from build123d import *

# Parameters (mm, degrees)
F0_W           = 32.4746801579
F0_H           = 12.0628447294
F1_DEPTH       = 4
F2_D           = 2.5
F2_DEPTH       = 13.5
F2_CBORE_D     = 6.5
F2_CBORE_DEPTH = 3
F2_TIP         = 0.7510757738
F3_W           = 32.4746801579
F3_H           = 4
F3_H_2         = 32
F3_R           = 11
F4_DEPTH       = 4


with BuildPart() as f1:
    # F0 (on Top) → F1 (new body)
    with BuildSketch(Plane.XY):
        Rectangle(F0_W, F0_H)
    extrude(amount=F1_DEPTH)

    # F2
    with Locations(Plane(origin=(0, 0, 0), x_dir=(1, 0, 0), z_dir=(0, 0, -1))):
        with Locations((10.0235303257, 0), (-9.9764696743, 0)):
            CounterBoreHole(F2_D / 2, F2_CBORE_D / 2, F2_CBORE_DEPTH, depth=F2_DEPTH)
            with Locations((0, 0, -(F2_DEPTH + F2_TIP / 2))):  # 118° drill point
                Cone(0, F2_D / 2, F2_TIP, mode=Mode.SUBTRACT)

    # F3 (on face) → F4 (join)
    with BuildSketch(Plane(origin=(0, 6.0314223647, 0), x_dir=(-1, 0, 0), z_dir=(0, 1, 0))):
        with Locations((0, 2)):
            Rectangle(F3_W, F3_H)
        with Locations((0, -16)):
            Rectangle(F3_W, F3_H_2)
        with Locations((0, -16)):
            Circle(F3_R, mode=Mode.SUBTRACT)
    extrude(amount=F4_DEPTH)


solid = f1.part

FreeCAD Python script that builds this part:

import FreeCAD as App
import Part
import Sketcher

V = App.Vector


def add_polygon(sketch, points):
    """Adds a closed chain of lines whose ends are joined by coincident constraints."""
    first, n = sketch.GeometryCount, len(points)
    for a, b in zip(points, points[1:] + points[:1]):
        sketch.addGeometry(Part.LineSegment(App.Vector(*a, 0), App.Vector(*b, 0)), False)
    for i in range(n):
        sketch.addConstraint(Sketcher.Constraint("Coincident", first + i, 2, first + (i + 1) % n, 1))

doc = App.newDocument("Part")
params = doc.addObject("Spreadsheet::Sheet", "Params")
for row, (alias, value) in enumerate([
    ("pad1_length", "4 mm"),
    ("sketch2_diameter", "2.5 mm"),
    ("hole_diameter", "2.5 mm"),
    ("hole_depth", "13.5 mm"),
    ("hole_cbore_diameter", "6.5 mm"),
    ("hole_cbore_depth", "3 mm"),
    ("sketch3_diameter", "22 mm"),
    ("sketch3_height", "36 mm"),
    ("pad2_length", "4 mm"),
], start=1):
    params.set(f"A{row}", alias)
    params.set(f"B{row}", "=" + value)
    params.setAlias(f"B{row}", alias)

body = doc.addObject("PartDesign::Body", "Body")

sketch1 = body.newObject("Sketcher::SketchObject", "Sketch")
sketch1.AttachmentSupport = (doc.getObject("XY_Plane"), [""])
sketch1.MapMode = "FlatFace"
add_polygon(sketch1, [(-16, 6), (-16, -6), (16, -6), (16, 6)])
sketch1.addConstraint(Sketcher.Constraint("Vertical", 0))
sketch1.addConstraint(Sketcher.Constraint("Horizontal", 1))
sketch1.addConstraint(Sketcher.Constraint("Vertical", 2))
sketch1.addConstraint(Sketcher.Constraint("Horizontal", 3))
sketch1.addConstraint(Sketcher.Constraint("Symmetric", 0, 2, 2, 2, -1, 1))
sketch1.addConstraint(Sketcher.Constraint("DistanceX", 1, 1, 1, 2, 32.47468))
sketch1.addConstraint(Sketcher.Constraint("DistanceY", 0, 2, 0, 1, 12.062845))
pad1 = body.newObject("PartDesign::Pad", "Pad")
pad1.Profile = sketch1
pad1.setExpression("Length", "Params.pad1_length")

sketch2 = body.newObject("Sketcher::SketchObject", "Sketch001")
sketch2.AttachmentSupport = (doc.getObject("XY_Plane"), [""])
sketch2.MapMode = "FlatFace"
sketch2.addGeometry(Part.Circle(V(10, 0, 0), V(0, 0, 1), 1.2), False)
sketch2.addGeometry(Part.Circle(V(-10, 0, 0), V(0, 0, 1), 1.2), False)
sketch2.addConstraint(Sketcher.Constraint("Equal", 0, 1))
sketch2.addConstraint(Sketcher.Constraint("PointOnObject", 0, 3, -1))
sketch2.addConstraint(Sketcher.Constraint("PointOnObject", 1, 3, -1))
sketch2.addConstraint(Sketcher.Constraint("Diameter", 0, 2.5))
sketch2.addConstraint(Sketcher.Constraint("DistanceX", 1, 3, 0, 3, 20.0))
sketch2.addConstraint(Sketcher.Constraint("DistanceX", -1, 1, 0, 3, 10.02353))
sketch2.setExpression("Constraints[3]", "Params.sketch2_diameter")
doc.recompute()
hole = body.newObject("PartDesign::Hole", "Hole")
hole.Profile = sketch2
hole.ThreadType = "None"
hole.setExpression("Diameter", "Params.hole_diameter")
hole.DepthType = "Dimension"
hole.setExpression("Depth", "Params.hole_depth")
hole.DrillPoint = "Angled"
hole.DrillPointAngle = 118
hole.HoleCutType = "Counterbore"
hole.setExpression("HoleCutDiameter", "Params.hole_cbore_diameter")
hole.setExpression("HoleCutDepth", "Params.hole_cbore_depth")
hole.Reversed = True

sketch3 = body.newObject("Sketcher::SketchObject", "Sketch002")
sketch3.AttachmentSupport = (doc.getObject("XZ_Plane"), [""])
sketch3.MapMode = "FlatFace"
sketch3.AttachmentOffset = App.Placement(V(0, 0, -6.031422), App.Rotation())
add_polygon(sketch3, [(16, 4), (16, -32), (-16, -32), (-16, 4)])
sketch3.addGeometry(Part.Circle(V(0, -16, 0), V(0, 0, 1), 11), False)
sketch3.addConstraint(Sketcher.Constraint("Vertical", 0))
sketch3.addConstraint(Sketcher.Constraint("Horizontal", 1))
sketch3.addConstraint(Sketcher.Constraint("Vertical", 2))
sketch3.addConstraint(Sketcher.Constraint("Horizontal", 3))
sketch3.addConstraint(Sketcher.Constraint("PointOnObject", 4, 3, -2))
sketch3.addConstraint(Sketcher.Constraint("Diameter", 4, 22.0))
sketch3.addConstraint(Sketcher.Constraint("DistanceY", 0, 2, 0, 1, 36.0))
sketch3.addConstraint(Sketcher.Constraint("DistanceY", 4, 3, -1, 1, 16.0))
sketch3.addConstraint(Sketcher.Constraint("DistanceY", 0, 2, -1, 1, 32.0))
sketch3.addConstraint(Sketcher.Constraint("DistanceX", 1, 2, 1, 1, 32.47468))
sketch3.addConstraint(Sketcher.Constraint("DistanceX", -1, 1, 0, 2, 16.23734))
sketch3.setExpression("Constraints[9]", "Params.sketch3_diameter")
sketch3.setExpression("Constraints[10]", "Params.sketch3_height")
pad2 = body.newObject("PartDesign::Pad", "Pad001")
pad2.Profile = sketch3
pad2.setExpression("Length", "Params.pad2_length")
pad2.Reversed = True

doc.recompute()
